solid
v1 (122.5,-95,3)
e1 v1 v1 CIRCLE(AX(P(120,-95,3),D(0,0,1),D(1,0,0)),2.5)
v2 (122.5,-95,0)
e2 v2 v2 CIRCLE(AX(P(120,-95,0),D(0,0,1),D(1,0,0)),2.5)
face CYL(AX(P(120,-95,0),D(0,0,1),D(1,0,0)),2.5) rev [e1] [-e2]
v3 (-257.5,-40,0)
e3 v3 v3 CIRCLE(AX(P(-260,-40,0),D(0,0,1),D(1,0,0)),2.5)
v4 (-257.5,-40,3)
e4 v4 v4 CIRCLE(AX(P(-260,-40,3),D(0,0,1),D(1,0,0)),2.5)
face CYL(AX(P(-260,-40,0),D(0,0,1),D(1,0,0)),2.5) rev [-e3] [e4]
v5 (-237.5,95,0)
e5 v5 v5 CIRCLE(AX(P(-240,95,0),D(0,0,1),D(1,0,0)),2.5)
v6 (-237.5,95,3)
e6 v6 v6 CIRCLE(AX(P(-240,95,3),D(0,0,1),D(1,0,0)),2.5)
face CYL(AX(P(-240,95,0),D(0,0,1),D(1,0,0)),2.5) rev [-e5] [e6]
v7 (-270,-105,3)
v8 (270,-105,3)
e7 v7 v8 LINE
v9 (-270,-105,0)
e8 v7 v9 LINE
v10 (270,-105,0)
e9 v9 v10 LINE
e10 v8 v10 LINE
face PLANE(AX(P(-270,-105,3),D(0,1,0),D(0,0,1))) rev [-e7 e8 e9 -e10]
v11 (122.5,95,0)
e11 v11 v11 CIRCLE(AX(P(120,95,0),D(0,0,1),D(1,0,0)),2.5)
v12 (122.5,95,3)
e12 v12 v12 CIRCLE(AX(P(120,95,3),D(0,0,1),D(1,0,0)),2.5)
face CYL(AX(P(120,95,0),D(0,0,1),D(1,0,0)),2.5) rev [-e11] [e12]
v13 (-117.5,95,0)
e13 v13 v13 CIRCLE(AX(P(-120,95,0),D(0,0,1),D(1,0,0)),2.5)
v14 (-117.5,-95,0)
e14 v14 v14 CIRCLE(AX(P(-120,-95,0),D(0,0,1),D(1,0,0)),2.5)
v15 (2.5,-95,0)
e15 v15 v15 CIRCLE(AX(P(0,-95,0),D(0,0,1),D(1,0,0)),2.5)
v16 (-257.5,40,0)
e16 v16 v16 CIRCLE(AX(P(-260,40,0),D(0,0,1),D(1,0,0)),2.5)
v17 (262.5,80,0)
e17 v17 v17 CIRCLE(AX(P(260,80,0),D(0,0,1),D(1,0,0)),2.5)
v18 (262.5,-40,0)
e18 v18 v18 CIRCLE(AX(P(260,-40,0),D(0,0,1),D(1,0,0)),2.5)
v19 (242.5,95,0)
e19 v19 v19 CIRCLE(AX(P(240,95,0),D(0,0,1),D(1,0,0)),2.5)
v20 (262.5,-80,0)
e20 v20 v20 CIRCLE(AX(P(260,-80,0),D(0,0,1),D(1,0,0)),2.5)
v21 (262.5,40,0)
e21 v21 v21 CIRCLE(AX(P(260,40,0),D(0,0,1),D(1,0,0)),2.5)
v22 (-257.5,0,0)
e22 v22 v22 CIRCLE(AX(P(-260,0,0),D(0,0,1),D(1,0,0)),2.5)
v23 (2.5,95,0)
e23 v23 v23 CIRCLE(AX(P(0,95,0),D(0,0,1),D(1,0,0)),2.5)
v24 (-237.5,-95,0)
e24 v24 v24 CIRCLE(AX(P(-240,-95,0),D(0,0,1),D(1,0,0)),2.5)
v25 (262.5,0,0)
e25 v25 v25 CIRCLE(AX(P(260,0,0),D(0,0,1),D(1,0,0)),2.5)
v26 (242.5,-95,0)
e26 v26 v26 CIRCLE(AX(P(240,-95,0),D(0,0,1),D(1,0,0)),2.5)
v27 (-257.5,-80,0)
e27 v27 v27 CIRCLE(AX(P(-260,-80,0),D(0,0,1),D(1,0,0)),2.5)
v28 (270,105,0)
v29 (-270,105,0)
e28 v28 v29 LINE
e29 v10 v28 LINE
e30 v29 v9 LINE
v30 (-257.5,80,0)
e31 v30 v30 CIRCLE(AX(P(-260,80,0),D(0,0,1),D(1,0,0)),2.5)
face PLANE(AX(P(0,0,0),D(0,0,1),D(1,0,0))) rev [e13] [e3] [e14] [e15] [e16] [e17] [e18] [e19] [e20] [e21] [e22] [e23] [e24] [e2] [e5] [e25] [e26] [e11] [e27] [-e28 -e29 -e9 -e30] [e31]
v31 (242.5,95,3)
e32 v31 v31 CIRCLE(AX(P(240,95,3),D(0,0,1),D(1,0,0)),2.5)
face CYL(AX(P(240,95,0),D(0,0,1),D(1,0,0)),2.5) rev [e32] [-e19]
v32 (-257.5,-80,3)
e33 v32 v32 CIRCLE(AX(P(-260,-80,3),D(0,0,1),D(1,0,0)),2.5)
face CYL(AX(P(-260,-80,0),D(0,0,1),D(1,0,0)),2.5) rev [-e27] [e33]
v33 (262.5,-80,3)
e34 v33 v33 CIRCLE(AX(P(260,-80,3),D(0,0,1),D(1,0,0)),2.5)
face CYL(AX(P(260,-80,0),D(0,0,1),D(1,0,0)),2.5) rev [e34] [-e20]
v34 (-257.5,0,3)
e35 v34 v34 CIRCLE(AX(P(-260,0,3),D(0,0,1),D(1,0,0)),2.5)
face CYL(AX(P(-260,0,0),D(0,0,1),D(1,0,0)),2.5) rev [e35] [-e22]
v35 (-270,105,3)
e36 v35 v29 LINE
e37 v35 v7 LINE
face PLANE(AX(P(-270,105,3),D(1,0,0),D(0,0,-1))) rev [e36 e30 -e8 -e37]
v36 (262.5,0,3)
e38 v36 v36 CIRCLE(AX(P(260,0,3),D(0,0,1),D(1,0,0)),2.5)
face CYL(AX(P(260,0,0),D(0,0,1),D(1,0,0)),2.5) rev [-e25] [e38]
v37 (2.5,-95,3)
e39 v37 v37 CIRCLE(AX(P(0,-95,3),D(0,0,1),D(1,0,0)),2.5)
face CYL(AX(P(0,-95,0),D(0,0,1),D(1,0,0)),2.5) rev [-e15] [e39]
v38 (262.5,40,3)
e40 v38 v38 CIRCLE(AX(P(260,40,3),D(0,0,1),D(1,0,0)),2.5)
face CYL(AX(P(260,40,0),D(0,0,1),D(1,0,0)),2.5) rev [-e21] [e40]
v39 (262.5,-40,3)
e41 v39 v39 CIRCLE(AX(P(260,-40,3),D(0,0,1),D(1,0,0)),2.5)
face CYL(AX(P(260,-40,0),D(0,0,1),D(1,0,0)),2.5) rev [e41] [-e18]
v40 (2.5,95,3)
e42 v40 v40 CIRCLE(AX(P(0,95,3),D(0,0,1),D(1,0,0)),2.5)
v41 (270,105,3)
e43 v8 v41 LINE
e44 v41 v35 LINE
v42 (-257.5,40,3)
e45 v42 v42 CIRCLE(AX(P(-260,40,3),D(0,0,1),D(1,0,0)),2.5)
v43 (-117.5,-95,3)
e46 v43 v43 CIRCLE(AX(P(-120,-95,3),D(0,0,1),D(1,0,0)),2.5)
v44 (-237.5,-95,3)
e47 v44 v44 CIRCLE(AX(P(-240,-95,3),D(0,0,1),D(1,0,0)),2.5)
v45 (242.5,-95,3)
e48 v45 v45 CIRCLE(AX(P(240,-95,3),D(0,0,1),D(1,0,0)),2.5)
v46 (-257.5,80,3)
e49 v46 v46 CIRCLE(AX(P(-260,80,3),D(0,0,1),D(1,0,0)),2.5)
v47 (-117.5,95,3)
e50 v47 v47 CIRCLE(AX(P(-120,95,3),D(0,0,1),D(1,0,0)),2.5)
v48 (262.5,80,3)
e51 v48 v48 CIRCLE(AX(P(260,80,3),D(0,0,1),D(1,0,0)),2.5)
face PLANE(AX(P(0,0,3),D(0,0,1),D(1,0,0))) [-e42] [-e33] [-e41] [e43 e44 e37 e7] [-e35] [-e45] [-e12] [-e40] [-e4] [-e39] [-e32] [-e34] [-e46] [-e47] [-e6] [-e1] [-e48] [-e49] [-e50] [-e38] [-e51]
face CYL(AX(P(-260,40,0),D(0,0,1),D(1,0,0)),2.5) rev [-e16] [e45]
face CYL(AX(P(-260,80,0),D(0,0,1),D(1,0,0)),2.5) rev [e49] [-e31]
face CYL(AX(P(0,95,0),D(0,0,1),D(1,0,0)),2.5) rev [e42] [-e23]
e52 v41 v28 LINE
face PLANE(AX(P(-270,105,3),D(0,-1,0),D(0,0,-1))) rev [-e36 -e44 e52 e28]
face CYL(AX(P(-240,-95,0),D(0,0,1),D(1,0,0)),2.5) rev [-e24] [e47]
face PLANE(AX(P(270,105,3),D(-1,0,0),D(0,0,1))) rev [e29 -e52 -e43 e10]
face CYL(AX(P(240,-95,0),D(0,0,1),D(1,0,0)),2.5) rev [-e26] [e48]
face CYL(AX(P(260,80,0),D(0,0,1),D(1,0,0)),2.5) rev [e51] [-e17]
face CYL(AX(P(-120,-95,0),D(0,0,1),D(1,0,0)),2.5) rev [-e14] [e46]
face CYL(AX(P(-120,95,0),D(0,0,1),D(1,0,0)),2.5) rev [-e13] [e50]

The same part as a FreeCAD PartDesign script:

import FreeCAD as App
import Part
import Sketcher
from FreeCAD import Vector

doc = App.newDocument("Part")
body = doc.addObject("PartDesign::Body", "Body")

sketch1 = body.newObject("Sketcher::SketchObject", "Sketch")
sketch1.AttachmentSupport = (doc.getObject("XY_Plane"), [""])
sketch1.MapMode = "FlatFace"
sketch1.addGeometry([
    Part.LineSegment(Vector(-270, 105, 0), Vector(-270, -105, 0)),
    Part.LineSegment(Vector(-270, -105, 0), Vector(270, -105, 0)),
    Part.LineSegment(Vector(270, -105, 0), Vector(270, 105, 0)),
    Part.LineSegment(Vector(270, 105, 0), Vector(-270, 105, 0)),
], False)
sketch1.addConstraint([
    Sketcher.Constraint("Coincident", 0, 2, 1, 1),
    Sketcher.Constraint("Coincident", 1, 2, 2, 1),
    Sketcher.Constraint("Coincident", 2, 2, 3, 1),
    Sketcher.Constraint("Coincident", 3, 2, 0, 1),
    Sketcher.Constraint("Vertical", 0),
    Sketcher.Constraint("Horizontal", 1),
    Sketcher.Constraint("Vertical", 2),
    Sketcher.Constraint("Horizontal", 3),
    Sketcher.Constraint("Symmetric", 0, 2, 2, 2, -1, 1),
    Sketcher.Constraint("DistanceX", 1, 1, 1, 2, 540.0),
    Sketcher.Constraint("DistanceY", 0, 2, 0, 1, 210.0),
])
pad1 = body.newObject("PartDesign::Pad", "Pad")
pad1.Profile = sketch1
pad1.Length = 3

sketch2 = body.newObject("Sketcher::SketchObject", "Sketch001")
sketch2.AttachmentSupport = (doc.getObject("XY_Plane"), [""])
sketch2.MapMode = "FlatFace"
sketch2.AttachmentOffset = App.Placement(Vector(0, 0, 3), App.Rotation())
sketch2.addGeometry([
    Part.Circle(Vector(0, 95, 0), Vector(0, 0, 1), 2.5),
    Part.Circle(Vector(-260, 0, 0), Vector(0, 0, 1), 2.5),
    Part.Circle(Vector(0, -95, 0), Vector(0, 0, 1), 2.5),
    Part.Circle(Vector(260, 0, 0), Vector(0, 0, 1), 2.5),
    Part.Circle(Vector(120, 95, 0), Vector(0, 0, 1), 2.5),
    Part.Circle(Vector(240, 95, 0), Vector(0, 0, 1), 2.5),
    Part.Circle(Vector(-120, 95, 0), Vector(0, 0, 1), 2.5),
    Part.Circle(Vector(-240, 95, 0), Vector(0, 0, 1), 2.5),
    Part.Circle(Vector(-260, -40, 0), Vector(0, 0, 1), 2.5),
    Part.Circle(Vector(-260, -80, 0), Vector(0, 0, 1), 2.5),
    Part.Circle(Vector(-260, 40, 0), Vector(0, 0, 1), 2.5),
    Part.Circle(Vector(-260, 80, 0), Vector(0, 0, 1), 2.5),
    Part.Circle(Vector(120, -95, 0), Vector(0, 0, 1), 2.5),
    Part.Circle(Vector(240, -95, 0), Vector(0, 0, 1), 2.5),
    Part.Circle(Vector(-120, -95, 0), Vector(0, 0, 1), 2.5),
    Part.Circle(Vector(-240, -95, 0), Vector(0, 0, 1), 2.5),
    Part.Circle(Vector(260, 40, 0), Vector(0, 0, 1), 2.5),
    Part.Circle(Vector(260, 80, 0), Vector(0, 0, 1), 2.5),
    Part.Circle(Vector(260, -40, 0), Vector(0, 0, 1), 2.5),
    Part.Circle(Vector(260, -80, 0), Vector(0, 0, 1), 2.5),
], False)
sketch2.addConstraint([
    Sketcher.Constraint("Equal", 0, 1),
    Sketcher.Constraint("Equal", 1, 2),
    Sketcher.Constraint("Equal", 2, 3),
    Sketcher.Constraint("Equal", 3, 4),
    Sketcher.Constraint("Equal", 4, 5),
    Sketcher.Constraint("Equal", 5, 6),
    Sketcher.Constraint("Equal", 6, 7),
    Sketcher.Constraint("Equal", 7, 8),
    Sketcher.Constraint("Equal", 8, 9),
    Sketcher.Constraint("Equal", 9, 10),
    Sketcher.Constraint("Equal", 10, 11),
    Sketcher.Constraint("Equal", 11, 12),
    Sketcher.Constraint("Equal", 12, 13),
    Sketcher.Constraint("Equal", 13, 14),
    Sketcher.Constraint("Equal", 14, 15),
    Sketcher.Constraint("Equal", 15, 16),
    Sketcher.Constraint("Equal", 16, 17),
    Sketcher.Constraint("Equal", 17, 18),
    Sketcher.Constraint("Equal", 18, 19),
    Sketcher.Constraint("Symmetric", 0, 3, 2, 3, -1, 1),
    Sketcher.Constraint("Symmetric", 1, 3, 3, 3, -1, 1),
    Sketcher.Constraint("Symmetric", 6, 3, 12, 3, -1, 1),
    Sketcher.Constraint("Symmetric", 7, 3, 13, 3, -1, 1),
    Sketcher.Constraint("Symmetric", 4, 3, 14, 3, -1, 1),
    Sketcher.Constraint("Symmetric", 5, 3, 15, 3, -1, 1),
    Sketcher.Constraint("Symmetric", 8, 3, 16, 3, -1, 1),
    Sketcher.Constraint("Symmetric", 9, 3, 17, 3, -1, 1),
    Sketcher.Constraint("Symmetric", 10, 3, 18, 3, -1, 1),
    Sketcher.Constraint("Symmetric", 11, 3, 19, 3, -1, 1),
    Sketcher.Constraint("Symmetric", 4, 3, 6, 3, -2),
    Sketcher.Constraint("Symmetric", 5, 3, 7, 3, -2),
    Sketcher.Constraint("Symmetric", 10, 3, 16, 3, -2),
    Sketcher.Constraint("Symmetric", 11, 3, 17, 3, -2),
    Sketcher.Constraint("PointOnObject", 0, 3, -2),
    Sketcher.Constraint("PointOnObject", 1, 3, -1),
    Sketcher.Constraint("Horizontal", 0, 3, 4, 3),
    Sketcher.Constraint("Horizontal", 4, 3, 5, 3),
    Sketcher.Constraint("Vertical", 1, 3, 8, 3),
    Sketcher.Constraint("Vertical", 8, 3, 9, 3),
    Sketcher.Constraint("Diameter", 0, 5.0),
    Sketcher.Constraint("DistanceY", -1, 1, 0, 3, 95.0),
    Sketcher.Constraint("DistanceX", 1, 3, -1, 1, 260.0),
    Sketcher.Constraint("DistanceX", -1, 1, 4, 3, 120.0),
    Sketcher.Constraint("DistanceX", -1, 1, 5, 3, 240.0),
    Sketcher.Constraint("DistanceY", 8, 3, -1, 1, 40.0),
    Sketcher.Constraint("DistanceY", 9, 3, -1, 1, 80.0),
])
pocket1 = body.newObject("PartDesign::Pocket", "Pocket")
pocket1.Profile = sketch2
pocket1.Type = "ThroughAll"

doc.recompute()
